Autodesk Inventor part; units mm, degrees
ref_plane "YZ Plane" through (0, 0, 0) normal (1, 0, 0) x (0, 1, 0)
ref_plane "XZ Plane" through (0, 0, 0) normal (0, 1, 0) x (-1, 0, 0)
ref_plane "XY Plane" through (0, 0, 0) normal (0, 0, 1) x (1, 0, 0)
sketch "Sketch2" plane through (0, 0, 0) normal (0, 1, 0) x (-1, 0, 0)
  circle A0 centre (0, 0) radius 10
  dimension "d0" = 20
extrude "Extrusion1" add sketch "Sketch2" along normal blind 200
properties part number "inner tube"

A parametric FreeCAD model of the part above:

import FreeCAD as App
import Part
import Sketcher
from FreeCAD import Vector

doc = App.newDocument("Part")
body = doc.addObject("PartDesign::Body", "Body")

# Sketch on XZ plane
sketch1 = body.newObject("Sketcher::SketchObject", "Sketch")
sketch1.AttachmentSupport = (doc.getObject("XZ_Plane"), [""])
sketch1.MapMode = "FlatFace"
sketch1.addGeometry(Part.Circle(Vector(0, 0, 0), Vector(0, 0, 1), 10), False)
sketch1.addConstraint(Sketcher.Constraint("Coincident", 0, 3, -1, 1))
sketch1.addConstraint(Sketcher.Constraint("Diameter", 0, 20.0))
pad1 = body.newObject("PartDesign::Pad", "Pad")
pad1.Profile = sketch1
pad1.Length = 200
pad1.Reversed = True

doc.recompute()
